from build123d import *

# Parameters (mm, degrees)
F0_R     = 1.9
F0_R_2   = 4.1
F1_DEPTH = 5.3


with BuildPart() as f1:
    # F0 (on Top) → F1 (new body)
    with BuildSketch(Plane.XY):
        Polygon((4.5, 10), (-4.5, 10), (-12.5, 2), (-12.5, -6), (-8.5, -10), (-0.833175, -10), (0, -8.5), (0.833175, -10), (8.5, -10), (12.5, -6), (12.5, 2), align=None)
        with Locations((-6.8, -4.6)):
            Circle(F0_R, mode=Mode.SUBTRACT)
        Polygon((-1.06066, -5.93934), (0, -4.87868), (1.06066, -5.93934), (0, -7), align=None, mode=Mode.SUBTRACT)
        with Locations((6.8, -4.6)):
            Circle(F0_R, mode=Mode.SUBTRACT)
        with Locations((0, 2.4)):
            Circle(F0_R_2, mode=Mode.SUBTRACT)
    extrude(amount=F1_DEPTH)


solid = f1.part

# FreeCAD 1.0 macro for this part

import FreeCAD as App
import Part
import Sketcher

V = App.Vector
Q = App.Units.Quantity

doc = App.newDocument("Part")
body = doc.addObject("PartDesign::Body", "Body")

# Sketch on XY plane
sketch1 = body.newObject("Sketcher::SketchObject", "Sketch")
sketch1.AttachmentSupport = (doc.getObject("XY_Plane"), [""])
sketch1.MapMode = "FlatFace"
sketch1.addGeometry([
    Part.LineSegment(V(4.5, 10, 0), V(-4.5, 10, 0)),  # 0
    Part.LineSegment(V(-4.5, 10, 0), V(-12.5, 2, 0)),  # 1
    Part.LineSegment(V(-12.5, 2, 0), V(-12.5, -6, 0)),  # 2
    Part.LineSegment(V(-12.5, -6, 0), V(-8.5, -10, 0)),  # 3
    Part.LineSegment(V(-8.5, -10, 0), V(-0.8, -10, 0)),  # 4
    Part.LineSegment(V(-0.8, -10, 0), V(0, -8.5, 0)),  # 5
    Part.LineSegment(V(0, -8.5, 0), V(0.8, -10, 0)),  # 6
    Part.LineSegment(V(0.8, -10, 0), V(8.5, -10, 0)),  # 7
    Part.LineSegment(V(8.5, -10, 0), V(12.5, -6, 0)),  # 8
    Part.LineSegment(V(12.5, -6, 0), V(12.5, 2, 0)),  # 9
    Part.LineSegment(V(12.5, 2, 0), V(4.5, 10, 0)),  # 10
    Part.Circle(V(-6.8, -4.6, 0), V(0, 0, 1), 1.9),  # 11
    Part.LineSegment(V(0, -7, 0), V(-1.1, -5.9, 0)),  # 12
    Part.LineSegment(V(-1.1, -5.9, 0), V(0, -4.9, 0)),  # 13
    Part.LineSegment(V(0, -4.9, 0), V(1.1, -5.9, 0)),  # 14
    Part.LineSegment(V(1.1, -5.9, 0), V(0, -7, 0)),  # 15
    Part.Circle(V(6.8, -4.6, 0), V(0, 0, 1), 1.9),  # 16
    Part.Circle(V(0, 2.4, 0), V(0, 0, 1), 4.1),  # 17
], False)
sketch1.addConstraint([
    Sketcher.Constraint("Coincident", 0, 2, 1, 1),
    Sketcher.Constraint("Coincident", 1, 2, 2, 1),
    Sketcher.Constraint("Coincident", 2, 2, 3, 1),
    Sketcher.Constraint("Coincident", 3, 2, 4, 1),
    Sketcher.Constraint("Coincident", 4, 2, 5, 1),
    Sketcher.Constraint("Coincident", 5, 2, 6, 1),
    Sketcher.Constraint("Coincident", 6, 2, 7, 1),
    Sketcher.Constraint("Coincident", 7, 2, 8, 1),
    Sketcher.Constraint("Coincident", 8, 2, 9, 1),
    Sketcher.Constraint("Coincident", 9, 2, 10, 1),
    Sketcher.Constraint("Coincident", 10, 2, 0, 1),
    Sketcher.Constraint("Coincident", 12, 2, 13, 1),
    Sketcher.Constraint("Coincident", 13, 2, 14, 1),
    Sketcher.Constraint("Coincident", 14, 2, 15, 1),
    Sketcher.Constraint("Coincident", 15, 2, 12, 1),
    Sketcher.Constraint("Horizontal", 0),
    Sketcher.Constraint("Vertical", 2),
    Sketcher.Constraint("Horizontal", 4),
    Sketcher.Constraint("Horizontal", 7),
    Sketcher.Constraint("Vertical", 9),
    Sketcher.Constraint("Equal", 11, 16),
    Sketcher.Constraint("Symmetric", 11, 3, 16, 3, -2),
    Sketcher.Constraint("Symmetric", 4, 2, 6, 2, -2),
    Sketcher.Constraint("Symmetric", 2, 2, 8, 2, -2),
    Sketcher.Constraint("Symmetric", 12, 2, 14, 2, -2),
    Sketcher.Constraint("PointOnObject", 17, 3, -2),
    Sketcher.Constraint("PointOnObject", 5, 2, -2),
    Sketcher.Constraint("PointOnObject", 13, 2, -2),
    Sketcher.Constraint("PointOnObject", 15, 2, -2),
    Sketcher.Constraint("Perpendicular", 1, 3),
    Sketcher.Constraint("Perpendicular", 3, 8),
    Sketcher.Constraint("Perpendicular", 8, 10),
    Sketcher.Constraint("Parallel", 10, 12),
    Sketcher.Constraint("Perpendicular", 12, 13),
    Sketcher.Constraint("Perpendicular", 13, 14),
    Sketcher.Constraint("Horizontal", 1, 2, 9, 2),
    Sketcher.Constraint("Diameter", 11, Q("3.8 mm")),
    Sketcher.Constraint("Diameter", 17, Q("8.2 mm")),
    Sketcher.Constraint("DistanceX", 0, 2, 0, 1, Q("9 mm")),
    Sketcher.Constraint("DistanceY", 2, 2, 2, 1, Q("8 mm")),
    Sketcher.Constraint("DistanceY", -1, 1, 0, 2, Q("10 mm")),
    Sketcher.Constraint("DistanceY", -1, 1, 1, 2, Q("2 mm")),
    Sketcher.Constraint("DistanceY", 3, 2, -1, 1, Q("10 mm")),
    Sketcher.Constraint("DistanceY", 15, 2, -1, 1, Q("7 mm")),
    Sketcher.Constraint("DistanceY", 11, 3, 17, 3, Q("7 mm")),
    Sketcher.Constraint("Distance", 12, Q("1.5 mm")),
    Sketcher.Constraint("DistanceX", 11, 3, -1, 1, Q("6.8 mm")),
    Sketcher.Constraint("DistanceY", 11, 3, -1, 1, Q("4.6 mm")),
    Sketcher.Constraint("DistanceY", 5, 2, -1, 1, Q("8.5 mm")),
    Sketcher.Constraint("Angle", 5, Q("60.950018 deg")),
])
pad1 = body.newObject("PartDesign::Pad", "Pad")
pad1.Profile = sketch1
pad1.Length = 5.3

doc.recompute()
